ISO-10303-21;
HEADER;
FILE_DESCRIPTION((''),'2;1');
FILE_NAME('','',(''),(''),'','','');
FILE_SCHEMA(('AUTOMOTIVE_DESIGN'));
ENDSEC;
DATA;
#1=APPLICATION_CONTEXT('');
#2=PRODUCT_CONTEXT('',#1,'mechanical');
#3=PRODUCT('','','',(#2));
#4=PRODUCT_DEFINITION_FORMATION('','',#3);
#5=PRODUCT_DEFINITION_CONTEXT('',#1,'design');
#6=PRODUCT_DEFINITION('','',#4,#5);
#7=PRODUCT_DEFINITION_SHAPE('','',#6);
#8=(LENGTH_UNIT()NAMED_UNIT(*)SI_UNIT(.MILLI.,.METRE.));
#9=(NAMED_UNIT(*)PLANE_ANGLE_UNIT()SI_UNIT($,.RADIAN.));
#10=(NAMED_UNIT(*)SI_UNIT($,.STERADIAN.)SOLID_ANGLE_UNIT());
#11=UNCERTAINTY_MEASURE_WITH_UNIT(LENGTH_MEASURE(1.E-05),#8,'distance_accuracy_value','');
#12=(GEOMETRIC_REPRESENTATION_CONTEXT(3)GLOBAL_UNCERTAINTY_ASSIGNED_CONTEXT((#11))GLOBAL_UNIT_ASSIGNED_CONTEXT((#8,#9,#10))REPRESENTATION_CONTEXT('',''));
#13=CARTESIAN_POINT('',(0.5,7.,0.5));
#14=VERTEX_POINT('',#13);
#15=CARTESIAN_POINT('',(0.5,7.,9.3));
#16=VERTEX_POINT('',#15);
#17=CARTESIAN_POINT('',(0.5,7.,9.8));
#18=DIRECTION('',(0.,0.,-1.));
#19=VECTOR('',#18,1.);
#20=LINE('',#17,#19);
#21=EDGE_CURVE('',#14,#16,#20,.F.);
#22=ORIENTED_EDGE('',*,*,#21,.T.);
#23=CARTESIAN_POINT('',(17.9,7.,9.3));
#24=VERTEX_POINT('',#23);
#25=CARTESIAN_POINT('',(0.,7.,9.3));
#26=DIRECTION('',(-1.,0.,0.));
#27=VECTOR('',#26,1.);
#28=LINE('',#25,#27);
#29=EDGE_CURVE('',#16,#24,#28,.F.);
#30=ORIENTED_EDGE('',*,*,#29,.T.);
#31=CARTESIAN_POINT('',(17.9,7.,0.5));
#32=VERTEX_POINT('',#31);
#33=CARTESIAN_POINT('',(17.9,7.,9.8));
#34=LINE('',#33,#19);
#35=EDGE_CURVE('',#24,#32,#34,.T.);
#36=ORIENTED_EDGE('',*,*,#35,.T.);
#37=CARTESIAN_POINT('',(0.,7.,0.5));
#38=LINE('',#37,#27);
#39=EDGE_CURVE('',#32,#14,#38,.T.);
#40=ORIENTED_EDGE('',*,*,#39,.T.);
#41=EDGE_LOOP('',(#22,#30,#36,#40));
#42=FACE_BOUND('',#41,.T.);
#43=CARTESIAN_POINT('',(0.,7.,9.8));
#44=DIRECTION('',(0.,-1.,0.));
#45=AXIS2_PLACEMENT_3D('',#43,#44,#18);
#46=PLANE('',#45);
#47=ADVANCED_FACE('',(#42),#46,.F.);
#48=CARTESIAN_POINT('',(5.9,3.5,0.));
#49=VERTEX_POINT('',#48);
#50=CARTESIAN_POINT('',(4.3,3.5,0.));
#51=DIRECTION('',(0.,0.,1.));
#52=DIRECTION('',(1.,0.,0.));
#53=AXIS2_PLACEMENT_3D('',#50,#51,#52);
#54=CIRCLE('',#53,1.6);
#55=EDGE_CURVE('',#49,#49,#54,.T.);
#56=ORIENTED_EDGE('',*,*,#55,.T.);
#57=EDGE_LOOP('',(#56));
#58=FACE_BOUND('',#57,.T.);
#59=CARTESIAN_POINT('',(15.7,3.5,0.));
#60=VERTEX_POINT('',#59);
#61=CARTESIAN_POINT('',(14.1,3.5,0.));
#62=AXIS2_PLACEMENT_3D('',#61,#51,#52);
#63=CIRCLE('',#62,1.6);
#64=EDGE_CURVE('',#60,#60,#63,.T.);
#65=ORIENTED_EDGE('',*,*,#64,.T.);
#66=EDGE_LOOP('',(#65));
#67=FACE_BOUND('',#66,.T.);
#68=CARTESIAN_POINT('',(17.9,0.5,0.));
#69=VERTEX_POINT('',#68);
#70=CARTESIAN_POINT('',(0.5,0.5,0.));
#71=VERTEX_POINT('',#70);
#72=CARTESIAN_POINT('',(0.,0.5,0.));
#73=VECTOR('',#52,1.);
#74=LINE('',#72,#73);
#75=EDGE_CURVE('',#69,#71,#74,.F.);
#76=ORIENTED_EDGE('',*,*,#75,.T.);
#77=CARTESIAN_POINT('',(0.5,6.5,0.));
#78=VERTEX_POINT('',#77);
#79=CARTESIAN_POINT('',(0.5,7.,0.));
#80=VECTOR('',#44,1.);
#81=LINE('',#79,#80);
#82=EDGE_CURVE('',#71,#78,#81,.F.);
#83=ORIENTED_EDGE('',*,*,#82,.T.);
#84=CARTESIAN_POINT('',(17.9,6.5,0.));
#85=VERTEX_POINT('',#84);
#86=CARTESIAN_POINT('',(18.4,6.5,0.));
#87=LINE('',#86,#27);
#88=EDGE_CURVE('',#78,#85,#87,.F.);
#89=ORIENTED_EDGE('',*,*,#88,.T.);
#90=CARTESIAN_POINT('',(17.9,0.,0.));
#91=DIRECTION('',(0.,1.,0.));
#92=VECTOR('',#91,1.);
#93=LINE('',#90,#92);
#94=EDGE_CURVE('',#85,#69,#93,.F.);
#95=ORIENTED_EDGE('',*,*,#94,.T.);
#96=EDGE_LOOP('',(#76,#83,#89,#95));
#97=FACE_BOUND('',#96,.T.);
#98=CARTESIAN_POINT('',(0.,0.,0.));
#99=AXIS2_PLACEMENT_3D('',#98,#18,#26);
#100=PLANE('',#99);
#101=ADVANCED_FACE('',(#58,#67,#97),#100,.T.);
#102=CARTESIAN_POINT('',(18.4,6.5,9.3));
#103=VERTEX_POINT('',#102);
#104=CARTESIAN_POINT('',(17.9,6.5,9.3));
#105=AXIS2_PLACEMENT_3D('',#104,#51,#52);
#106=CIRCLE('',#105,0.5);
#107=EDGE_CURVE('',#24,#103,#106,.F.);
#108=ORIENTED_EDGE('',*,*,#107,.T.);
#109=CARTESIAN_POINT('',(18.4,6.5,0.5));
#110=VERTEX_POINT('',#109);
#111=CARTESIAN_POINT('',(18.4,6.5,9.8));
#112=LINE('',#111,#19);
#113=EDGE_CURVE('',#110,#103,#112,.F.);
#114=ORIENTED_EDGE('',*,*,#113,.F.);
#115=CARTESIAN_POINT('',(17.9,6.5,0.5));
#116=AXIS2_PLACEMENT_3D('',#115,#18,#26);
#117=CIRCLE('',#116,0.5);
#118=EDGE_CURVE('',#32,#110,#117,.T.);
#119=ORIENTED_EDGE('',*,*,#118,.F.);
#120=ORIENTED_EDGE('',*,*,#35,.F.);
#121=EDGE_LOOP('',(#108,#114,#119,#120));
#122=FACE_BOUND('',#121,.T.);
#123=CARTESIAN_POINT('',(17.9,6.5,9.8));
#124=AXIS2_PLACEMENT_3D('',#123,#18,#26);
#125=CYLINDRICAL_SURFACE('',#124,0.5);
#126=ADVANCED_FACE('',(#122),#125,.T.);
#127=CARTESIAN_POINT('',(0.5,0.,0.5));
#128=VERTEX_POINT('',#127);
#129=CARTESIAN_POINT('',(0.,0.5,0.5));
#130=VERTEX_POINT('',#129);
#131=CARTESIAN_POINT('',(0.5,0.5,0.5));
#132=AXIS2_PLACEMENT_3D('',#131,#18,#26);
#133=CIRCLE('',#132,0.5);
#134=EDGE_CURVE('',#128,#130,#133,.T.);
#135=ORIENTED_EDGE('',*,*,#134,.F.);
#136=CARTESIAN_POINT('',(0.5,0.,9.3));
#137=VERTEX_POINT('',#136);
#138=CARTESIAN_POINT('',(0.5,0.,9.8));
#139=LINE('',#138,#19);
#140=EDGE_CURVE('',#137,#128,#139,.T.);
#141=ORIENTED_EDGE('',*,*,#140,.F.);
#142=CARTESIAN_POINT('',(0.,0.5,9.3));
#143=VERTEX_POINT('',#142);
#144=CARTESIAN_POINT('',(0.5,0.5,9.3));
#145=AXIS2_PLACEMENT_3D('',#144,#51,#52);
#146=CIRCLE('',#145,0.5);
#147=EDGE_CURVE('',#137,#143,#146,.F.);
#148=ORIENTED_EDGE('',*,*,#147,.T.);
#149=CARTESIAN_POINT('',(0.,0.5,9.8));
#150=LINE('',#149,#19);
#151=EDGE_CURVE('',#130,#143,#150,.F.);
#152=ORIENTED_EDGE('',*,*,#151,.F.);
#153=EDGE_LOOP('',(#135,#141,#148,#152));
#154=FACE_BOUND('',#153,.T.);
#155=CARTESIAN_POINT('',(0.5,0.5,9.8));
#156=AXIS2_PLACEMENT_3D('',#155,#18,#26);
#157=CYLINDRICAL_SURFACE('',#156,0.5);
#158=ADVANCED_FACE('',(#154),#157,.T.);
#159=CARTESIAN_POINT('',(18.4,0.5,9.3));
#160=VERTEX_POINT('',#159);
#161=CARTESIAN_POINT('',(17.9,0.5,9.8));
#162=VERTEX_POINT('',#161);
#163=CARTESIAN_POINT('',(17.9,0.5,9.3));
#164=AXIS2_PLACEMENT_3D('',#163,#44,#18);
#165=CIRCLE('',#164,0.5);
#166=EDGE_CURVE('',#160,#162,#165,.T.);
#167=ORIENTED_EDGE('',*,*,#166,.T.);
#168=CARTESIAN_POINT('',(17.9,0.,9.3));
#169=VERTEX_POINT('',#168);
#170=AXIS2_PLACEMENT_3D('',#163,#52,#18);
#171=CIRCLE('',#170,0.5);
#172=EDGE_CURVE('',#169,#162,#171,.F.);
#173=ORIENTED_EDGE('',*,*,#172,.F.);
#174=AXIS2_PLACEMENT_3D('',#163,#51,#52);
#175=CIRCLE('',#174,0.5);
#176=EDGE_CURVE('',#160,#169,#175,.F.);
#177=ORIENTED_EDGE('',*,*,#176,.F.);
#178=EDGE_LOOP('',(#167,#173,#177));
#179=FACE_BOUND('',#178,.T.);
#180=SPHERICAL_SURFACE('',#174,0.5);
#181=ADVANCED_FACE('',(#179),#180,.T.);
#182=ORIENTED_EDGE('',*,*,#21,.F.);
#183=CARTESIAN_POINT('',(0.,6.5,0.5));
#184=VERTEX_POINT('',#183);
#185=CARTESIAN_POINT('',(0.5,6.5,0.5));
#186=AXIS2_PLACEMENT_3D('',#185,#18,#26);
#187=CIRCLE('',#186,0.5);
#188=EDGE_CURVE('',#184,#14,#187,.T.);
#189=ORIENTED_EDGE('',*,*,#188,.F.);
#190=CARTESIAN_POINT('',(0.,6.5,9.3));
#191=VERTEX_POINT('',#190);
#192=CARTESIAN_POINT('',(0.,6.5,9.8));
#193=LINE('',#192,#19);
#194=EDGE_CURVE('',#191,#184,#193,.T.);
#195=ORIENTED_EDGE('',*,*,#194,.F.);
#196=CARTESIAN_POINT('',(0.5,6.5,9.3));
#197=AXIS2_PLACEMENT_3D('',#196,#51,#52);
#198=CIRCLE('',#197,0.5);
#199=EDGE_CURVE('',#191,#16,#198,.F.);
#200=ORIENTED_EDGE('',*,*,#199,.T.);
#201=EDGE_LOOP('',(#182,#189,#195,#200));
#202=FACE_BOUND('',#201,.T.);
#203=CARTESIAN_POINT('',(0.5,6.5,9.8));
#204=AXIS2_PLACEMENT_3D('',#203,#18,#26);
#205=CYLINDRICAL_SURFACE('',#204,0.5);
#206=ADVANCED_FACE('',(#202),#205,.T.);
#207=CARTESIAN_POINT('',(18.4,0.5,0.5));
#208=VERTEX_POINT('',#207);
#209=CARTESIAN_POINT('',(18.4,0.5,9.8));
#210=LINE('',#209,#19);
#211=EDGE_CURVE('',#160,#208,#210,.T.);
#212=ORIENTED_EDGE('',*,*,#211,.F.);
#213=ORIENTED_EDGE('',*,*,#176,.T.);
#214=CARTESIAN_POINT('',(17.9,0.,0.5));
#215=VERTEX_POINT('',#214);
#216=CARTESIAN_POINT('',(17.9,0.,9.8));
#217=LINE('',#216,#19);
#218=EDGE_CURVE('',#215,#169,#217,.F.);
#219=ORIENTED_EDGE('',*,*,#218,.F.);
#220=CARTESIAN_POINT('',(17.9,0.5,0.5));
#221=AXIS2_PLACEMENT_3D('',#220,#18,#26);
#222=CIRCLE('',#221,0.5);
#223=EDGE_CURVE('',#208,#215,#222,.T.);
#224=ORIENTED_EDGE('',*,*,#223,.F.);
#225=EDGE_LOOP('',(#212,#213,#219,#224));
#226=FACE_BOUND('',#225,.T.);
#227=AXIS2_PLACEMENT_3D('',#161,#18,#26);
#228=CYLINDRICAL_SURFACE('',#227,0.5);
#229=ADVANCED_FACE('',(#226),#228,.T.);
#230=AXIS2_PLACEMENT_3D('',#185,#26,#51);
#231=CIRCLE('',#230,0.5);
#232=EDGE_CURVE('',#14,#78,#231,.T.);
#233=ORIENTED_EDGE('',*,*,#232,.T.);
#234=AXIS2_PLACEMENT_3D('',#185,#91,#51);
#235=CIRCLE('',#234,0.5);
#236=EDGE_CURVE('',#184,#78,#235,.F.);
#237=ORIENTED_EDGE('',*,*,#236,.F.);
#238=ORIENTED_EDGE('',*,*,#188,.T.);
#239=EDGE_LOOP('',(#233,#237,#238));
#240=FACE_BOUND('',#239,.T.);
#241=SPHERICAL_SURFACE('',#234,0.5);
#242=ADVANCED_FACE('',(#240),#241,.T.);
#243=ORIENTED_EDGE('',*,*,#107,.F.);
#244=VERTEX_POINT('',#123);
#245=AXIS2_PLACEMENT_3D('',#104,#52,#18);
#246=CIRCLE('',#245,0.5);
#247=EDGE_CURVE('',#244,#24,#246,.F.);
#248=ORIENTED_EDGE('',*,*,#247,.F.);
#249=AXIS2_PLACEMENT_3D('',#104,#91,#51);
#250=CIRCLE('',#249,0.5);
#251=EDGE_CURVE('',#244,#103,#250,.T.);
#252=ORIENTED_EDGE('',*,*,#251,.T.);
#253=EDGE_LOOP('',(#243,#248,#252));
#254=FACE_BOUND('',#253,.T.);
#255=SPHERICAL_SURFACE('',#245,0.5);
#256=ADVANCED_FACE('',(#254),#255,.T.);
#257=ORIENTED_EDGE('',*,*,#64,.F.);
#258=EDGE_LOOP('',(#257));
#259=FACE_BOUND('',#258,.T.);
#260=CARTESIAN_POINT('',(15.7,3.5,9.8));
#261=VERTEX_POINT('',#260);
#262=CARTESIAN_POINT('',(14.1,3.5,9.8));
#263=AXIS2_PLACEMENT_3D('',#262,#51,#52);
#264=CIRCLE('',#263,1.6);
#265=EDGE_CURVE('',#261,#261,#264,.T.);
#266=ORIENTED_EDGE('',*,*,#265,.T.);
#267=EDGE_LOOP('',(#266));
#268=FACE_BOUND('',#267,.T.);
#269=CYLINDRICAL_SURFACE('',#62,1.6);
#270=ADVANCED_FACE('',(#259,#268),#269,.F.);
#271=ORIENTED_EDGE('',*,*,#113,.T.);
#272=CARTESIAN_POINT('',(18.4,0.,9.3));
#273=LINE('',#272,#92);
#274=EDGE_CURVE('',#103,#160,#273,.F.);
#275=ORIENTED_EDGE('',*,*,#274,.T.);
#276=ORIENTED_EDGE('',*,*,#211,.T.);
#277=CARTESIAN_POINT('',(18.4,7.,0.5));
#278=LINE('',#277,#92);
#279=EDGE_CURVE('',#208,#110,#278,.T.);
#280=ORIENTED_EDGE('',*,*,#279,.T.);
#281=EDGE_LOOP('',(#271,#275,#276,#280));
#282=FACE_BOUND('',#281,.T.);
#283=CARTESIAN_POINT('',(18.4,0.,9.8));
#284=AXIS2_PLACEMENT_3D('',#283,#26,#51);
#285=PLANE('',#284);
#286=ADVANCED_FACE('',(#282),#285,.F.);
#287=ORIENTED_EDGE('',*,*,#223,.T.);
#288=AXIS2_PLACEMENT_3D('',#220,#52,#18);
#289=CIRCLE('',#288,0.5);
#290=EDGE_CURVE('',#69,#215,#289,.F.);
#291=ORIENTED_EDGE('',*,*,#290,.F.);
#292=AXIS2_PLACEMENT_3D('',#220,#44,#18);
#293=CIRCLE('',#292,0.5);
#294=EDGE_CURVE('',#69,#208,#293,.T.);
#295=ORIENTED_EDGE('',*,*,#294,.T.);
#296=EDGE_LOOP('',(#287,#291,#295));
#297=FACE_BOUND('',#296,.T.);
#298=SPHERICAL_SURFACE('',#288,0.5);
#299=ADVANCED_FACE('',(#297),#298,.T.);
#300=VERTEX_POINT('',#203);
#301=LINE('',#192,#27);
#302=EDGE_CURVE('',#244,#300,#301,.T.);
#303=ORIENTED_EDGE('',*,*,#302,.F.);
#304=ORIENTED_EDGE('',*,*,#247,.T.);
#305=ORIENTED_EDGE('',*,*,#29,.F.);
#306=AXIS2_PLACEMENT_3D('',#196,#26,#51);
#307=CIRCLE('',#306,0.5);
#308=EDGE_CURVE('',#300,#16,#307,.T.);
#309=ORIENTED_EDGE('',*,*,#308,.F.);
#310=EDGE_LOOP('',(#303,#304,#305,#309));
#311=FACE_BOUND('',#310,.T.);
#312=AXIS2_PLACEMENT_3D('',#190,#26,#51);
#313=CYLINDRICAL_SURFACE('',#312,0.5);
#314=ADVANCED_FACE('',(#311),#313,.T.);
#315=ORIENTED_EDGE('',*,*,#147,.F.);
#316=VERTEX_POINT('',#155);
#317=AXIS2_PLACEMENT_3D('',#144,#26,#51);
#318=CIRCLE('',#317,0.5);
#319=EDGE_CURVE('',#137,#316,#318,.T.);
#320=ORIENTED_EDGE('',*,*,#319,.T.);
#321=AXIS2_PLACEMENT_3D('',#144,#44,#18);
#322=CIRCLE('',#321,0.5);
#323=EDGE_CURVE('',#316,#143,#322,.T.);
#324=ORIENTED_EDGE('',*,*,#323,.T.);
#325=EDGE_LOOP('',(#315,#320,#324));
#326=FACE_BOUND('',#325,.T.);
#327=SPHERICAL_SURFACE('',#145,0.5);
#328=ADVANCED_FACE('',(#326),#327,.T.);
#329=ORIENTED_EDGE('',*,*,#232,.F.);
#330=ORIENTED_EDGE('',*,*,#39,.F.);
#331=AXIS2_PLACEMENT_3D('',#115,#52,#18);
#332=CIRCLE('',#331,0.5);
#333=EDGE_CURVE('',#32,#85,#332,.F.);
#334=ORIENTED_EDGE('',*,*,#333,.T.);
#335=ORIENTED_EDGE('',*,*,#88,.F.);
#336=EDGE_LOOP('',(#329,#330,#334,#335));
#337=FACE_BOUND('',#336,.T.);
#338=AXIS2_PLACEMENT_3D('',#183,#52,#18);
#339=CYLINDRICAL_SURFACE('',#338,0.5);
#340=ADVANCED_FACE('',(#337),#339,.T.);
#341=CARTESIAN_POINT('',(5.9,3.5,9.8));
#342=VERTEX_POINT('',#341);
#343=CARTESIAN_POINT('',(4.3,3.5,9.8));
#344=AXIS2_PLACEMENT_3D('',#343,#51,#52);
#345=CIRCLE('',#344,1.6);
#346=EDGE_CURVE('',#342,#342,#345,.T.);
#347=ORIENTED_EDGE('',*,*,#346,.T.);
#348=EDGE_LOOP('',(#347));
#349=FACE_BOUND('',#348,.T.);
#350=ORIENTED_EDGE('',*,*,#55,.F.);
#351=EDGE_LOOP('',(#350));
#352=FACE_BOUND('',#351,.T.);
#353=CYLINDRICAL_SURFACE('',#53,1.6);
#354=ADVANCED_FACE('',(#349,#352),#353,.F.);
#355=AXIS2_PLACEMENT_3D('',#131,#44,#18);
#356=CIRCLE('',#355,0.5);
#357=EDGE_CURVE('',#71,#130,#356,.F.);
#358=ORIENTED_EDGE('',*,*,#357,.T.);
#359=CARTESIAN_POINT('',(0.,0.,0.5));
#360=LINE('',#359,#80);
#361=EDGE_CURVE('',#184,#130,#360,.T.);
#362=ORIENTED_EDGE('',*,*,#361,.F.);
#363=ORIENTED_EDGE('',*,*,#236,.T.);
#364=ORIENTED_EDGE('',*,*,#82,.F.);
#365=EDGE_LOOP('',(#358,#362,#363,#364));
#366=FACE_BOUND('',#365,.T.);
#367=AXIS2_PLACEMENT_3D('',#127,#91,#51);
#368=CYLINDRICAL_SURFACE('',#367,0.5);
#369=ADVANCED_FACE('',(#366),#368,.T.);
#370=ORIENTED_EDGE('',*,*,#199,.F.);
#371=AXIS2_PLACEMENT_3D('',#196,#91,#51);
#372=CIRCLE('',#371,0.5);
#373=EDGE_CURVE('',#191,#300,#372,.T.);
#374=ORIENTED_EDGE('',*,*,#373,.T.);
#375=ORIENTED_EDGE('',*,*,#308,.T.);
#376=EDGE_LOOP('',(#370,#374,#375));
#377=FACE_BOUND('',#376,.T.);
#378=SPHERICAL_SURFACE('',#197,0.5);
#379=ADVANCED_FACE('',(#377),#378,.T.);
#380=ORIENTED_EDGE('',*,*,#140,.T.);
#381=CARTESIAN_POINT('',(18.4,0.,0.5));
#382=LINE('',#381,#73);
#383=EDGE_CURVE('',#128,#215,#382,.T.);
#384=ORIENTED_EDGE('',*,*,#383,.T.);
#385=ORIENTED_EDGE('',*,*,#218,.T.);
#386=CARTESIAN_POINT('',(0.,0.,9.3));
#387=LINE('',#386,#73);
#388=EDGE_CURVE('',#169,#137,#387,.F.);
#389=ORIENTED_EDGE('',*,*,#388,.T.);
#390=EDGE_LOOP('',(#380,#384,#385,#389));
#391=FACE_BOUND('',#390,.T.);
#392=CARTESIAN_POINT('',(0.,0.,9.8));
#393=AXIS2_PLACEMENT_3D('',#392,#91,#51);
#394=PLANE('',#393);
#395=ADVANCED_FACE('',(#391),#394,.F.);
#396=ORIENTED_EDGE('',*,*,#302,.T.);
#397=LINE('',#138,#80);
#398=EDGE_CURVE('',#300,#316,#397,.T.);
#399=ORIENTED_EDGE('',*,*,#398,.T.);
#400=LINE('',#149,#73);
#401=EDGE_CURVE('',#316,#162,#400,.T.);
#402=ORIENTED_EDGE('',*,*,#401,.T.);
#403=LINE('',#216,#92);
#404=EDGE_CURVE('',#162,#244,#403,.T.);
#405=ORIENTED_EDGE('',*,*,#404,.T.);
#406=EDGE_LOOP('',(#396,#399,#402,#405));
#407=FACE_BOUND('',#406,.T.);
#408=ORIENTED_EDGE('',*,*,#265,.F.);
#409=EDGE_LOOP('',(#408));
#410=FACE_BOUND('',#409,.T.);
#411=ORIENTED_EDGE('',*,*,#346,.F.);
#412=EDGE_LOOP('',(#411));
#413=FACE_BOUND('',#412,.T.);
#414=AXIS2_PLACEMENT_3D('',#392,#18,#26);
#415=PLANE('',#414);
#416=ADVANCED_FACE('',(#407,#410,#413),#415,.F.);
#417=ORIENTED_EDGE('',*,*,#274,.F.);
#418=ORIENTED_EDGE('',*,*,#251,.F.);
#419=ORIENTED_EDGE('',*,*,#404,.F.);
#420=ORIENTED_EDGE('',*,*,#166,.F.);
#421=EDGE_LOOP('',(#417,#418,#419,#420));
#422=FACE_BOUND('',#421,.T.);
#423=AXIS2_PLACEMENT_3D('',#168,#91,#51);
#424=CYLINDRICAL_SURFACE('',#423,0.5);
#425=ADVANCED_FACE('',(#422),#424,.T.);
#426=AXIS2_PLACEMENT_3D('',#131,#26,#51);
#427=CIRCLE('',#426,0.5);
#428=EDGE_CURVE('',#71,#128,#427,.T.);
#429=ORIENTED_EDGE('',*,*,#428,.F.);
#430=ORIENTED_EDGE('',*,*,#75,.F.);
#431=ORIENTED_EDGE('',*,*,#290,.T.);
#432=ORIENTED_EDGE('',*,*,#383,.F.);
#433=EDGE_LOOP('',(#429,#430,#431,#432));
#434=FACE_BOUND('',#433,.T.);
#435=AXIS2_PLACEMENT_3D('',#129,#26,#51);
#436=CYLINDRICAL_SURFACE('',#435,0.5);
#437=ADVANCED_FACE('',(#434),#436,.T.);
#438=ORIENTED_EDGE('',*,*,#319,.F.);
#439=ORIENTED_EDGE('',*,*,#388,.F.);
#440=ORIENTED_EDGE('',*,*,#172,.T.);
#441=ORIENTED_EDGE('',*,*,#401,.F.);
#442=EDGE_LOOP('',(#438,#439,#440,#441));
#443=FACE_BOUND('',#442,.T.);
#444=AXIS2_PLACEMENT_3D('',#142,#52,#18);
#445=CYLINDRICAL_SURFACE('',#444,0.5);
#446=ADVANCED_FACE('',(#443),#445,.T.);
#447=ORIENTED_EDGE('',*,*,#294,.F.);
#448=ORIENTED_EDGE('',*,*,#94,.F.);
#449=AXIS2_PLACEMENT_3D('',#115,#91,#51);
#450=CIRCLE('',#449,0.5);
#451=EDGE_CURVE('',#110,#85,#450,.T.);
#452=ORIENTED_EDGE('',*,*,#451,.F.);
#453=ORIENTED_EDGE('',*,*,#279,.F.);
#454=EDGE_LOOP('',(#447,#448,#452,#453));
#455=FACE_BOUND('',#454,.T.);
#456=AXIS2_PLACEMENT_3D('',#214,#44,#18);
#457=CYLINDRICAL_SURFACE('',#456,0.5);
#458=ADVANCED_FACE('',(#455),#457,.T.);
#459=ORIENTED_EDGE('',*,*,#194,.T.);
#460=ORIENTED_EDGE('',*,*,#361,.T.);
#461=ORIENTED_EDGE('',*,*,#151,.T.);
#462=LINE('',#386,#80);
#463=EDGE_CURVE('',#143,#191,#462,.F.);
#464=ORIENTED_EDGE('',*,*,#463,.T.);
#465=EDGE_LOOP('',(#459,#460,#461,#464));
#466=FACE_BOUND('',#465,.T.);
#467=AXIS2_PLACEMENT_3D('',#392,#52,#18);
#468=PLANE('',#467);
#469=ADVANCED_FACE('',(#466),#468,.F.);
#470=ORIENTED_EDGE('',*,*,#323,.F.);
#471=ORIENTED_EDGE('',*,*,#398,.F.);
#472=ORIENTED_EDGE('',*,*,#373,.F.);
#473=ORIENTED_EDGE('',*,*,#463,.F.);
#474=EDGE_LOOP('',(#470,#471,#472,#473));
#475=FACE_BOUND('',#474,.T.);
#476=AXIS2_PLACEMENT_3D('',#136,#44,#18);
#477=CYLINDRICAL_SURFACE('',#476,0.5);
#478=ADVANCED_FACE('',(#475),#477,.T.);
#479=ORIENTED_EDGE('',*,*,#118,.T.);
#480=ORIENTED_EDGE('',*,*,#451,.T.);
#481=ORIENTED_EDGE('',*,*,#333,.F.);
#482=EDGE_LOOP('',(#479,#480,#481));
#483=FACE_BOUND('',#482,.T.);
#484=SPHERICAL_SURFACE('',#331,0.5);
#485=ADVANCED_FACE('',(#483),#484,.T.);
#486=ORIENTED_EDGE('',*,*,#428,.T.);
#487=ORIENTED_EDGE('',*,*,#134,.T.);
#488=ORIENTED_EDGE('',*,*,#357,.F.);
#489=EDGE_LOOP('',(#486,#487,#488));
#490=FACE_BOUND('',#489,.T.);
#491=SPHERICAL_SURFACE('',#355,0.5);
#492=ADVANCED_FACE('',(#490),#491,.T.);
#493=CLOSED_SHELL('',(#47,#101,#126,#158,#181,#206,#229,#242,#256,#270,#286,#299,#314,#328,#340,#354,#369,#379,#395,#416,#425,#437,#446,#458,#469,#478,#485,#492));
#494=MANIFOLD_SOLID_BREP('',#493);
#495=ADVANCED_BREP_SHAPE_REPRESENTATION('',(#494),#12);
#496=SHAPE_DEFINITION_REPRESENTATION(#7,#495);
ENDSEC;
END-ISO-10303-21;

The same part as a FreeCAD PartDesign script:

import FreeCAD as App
import Part
import Sketcher
Q = App.Units.Quantity


def edges_at(feature, points):
    """Names of the edges that pass closest to the given points."""
    edges = feature.Shape.Edges
    near = lambda p: min(range(len(edges)), key=lambda i: edges[i].distToShape(Part.Vertex(*p))[0])
    return sorted({f"Edge{near(p) + 1}" for p in points})


def add_polygon(sketch, points):
    """Adds a closed chain of lines whose ends are joined by coincident constraints."""
    first, n = sketch.GeometryCount, len(points)
    for a, b in zip(points, points[1:] + points[:1]):
        sketch.addGeometry(Part.LineSegment(App.Vector(*a, 0), App.Vector(*b, 0)), False)
    for i in range(n):
        sketch.addConstraint(Sketcher.Constraint("Coincident", first + i, 2, first + (i + 1) % n, 1))

doc = App.newDocument("Part")
params = doc.addObject("Spreadsheet::Sheet", "Params")
for row, (alias, value) in enumerate([
    ("sketch1_height", "7 mm"),
    ("sketch1_width", "18.4 mm"),
    ("pad1_length", "9.8 mm"),
    ("sketch2_diameter", "3.2 mm"),
    ("pocket1_length", "9.8 mm"),
    ("fillet_radius", "0.5 mm"),
], start=1):
    params.set(f"A{row}", alias)
    params.set(f"B{row}", "=" + value)
    params.setAlias(f"B{row}", alias)

body = doc.addObject("PartDesign::Body", "Body")

sketch1 = doc.addObject("Sketcher::SketchObject", "Sketch")
body.addObject(sketch1)
sketch1.AttachmentSupport = (doc.XY_Plane, [""])
sketch1.MapMode = "FlatFace"
add_polygon(sketch1, [(0, 7), (0, 0), (18, 0), (18, 7)])
sketch1.addConstraint([
    Sketcher.Constraint("Vertical", 0),
    Sketcher.Constraint("Horizontal", 1),
    Sketcher.Constraint("Vertical", 2),
    Sketcher.Constraint("Horizontal", 3),
    Sketcher.Constraint("Coincident", 0, 2, -1, 1),
    Sketcher.Constraint("DistanceY", 0, 2, 0, 1, Q("7 mm")),
    Sketcher.Constraint("DistanceX", 1, 1, 1, 2, Q("18.4 mm")),
])
sketch1.setExpression("Constraints[9]", "Params.sketch1_height")
sketch1.setExpression("Constraints[10]", "Params.sketch1_width")
pad1 = doc.addObject("PartDesign::Pad", "Pad")
body.addObject(pad1)
pad1.Profile = sketch1
pad1.setExpression("Length", "Params.pad1_length")

sketch2 = doc.addObject("Sketcher::SketchObject", "Sketch001")
body.addObject(sketch2)
sketch2.AttachmentSupport = (doc.XY_Plane, [""])
sketch2.MapMode = "FlatFace"
sketch2.AttachmentOffset = App.Placement(App.Vector(0, 0, 9.8), App.Rotation())
sketch2.addGeometry([
    Part.Circle(App.Vector(4.3, 3.5, 0), App.Vector(0, 0, 1), 1.6),
    Part.Circle(App.Vector(14.1, 3.5, 0), App.Vector(0, 0, 1), 1.6),
], False)
sketch2.addConstraint([
    Sketcher.Constraint("Equal", 0, 1),
    Sketcher.Constraint("Horizontal", 0, 3, 1, 3),
    Sketcher.Constraint("Diameter", 0, Q("3.2 mm")),
    Sketcher.Constraint("DistanceX", -1, 1, 0, 3, Q("4.3 mm")),
    Sketcher.Constraint("DistanceY", -1, 1, 0, 3, Q("3.5 mm")),
    Sketcher.Constraint("DistanceX", -1, 1, 1, 3, Q("14.1 mm")),
])
sketch2.setExpression("Constraints[2]", "Params.sketch2_diameter")
pocket1 = doc.addObject("PartDesign::Pocket", "Pocket")
body.addObject(pocket1)
pocket1.Profile = sketch2
pocket1.setExpression("Length", "Params.pocket1_length")
doc.recompute()

fillet = doc.addObject("PartDesign::Fillet", "Fillet")
body.addObject(fillet)
fillet.Base = (pocket1, edges_at(pocket1, [
    (18.4, 3.5, 9.8),
    (9.2, 7, 9.8),
    (0, 3.5, 9.8),
    (9.2, 7, 0),
    (18.4, 3.5, 0),
    (9.2, 0, 0),
    (0, 3.5, 0),
    (0, 7, 4.9),
    (18.4, 7, 4.9),
    (18.4, 0, 4.9),
    (0, 0, 4.9),
    (9.2, 0, 9.8),
]))
fillet.setExpression("Radius", "Params.fillet_radius")

doc.recompute()
